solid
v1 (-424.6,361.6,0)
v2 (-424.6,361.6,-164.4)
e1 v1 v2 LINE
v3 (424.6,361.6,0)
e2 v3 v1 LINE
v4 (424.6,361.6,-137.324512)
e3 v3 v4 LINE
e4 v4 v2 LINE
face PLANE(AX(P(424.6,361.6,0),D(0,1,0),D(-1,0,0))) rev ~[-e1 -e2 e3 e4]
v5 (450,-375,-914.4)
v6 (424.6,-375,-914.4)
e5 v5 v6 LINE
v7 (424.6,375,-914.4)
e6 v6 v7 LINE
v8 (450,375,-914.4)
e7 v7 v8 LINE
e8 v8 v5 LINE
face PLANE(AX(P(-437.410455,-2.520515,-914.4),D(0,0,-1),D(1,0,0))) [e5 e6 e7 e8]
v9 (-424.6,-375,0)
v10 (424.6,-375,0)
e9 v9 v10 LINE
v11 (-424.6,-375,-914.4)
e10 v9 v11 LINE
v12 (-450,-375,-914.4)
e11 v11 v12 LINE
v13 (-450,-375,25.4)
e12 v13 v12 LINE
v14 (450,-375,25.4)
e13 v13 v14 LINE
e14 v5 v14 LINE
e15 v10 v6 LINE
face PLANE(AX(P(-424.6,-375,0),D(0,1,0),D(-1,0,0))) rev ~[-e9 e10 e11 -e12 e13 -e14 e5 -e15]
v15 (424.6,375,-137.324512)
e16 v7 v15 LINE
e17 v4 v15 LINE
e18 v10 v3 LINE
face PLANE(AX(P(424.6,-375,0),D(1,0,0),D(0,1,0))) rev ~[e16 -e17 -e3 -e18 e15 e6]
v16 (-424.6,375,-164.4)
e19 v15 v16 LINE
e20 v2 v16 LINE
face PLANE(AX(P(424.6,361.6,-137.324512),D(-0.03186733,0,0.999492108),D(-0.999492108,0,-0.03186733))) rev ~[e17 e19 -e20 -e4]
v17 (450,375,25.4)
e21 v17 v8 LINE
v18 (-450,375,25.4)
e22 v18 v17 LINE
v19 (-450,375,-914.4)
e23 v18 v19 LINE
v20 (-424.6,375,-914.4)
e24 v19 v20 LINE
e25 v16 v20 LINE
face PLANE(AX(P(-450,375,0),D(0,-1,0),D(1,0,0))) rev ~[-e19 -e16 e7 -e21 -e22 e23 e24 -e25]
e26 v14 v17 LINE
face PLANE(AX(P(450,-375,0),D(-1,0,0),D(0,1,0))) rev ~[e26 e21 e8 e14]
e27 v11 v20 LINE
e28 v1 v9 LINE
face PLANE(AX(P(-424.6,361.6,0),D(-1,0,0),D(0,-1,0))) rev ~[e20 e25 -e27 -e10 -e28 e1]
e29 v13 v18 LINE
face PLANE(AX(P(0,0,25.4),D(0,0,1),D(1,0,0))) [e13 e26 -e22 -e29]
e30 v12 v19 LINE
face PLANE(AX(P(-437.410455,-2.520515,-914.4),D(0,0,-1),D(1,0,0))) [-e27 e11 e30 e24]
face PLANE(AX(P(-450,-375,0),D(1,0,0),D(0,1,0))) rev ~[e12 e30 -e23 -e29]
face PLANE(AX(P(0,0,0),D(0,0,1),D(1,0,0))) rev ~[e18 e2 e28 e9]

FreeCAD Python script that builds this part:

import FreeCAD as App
import Part
import Sketcher

V = App.Vector


def add_polygon(sketch, points):
    """Adds a closed chain of lines whose ends are joined by coincident constraints."""
    first, n = sketch.GeometryCount, len(points)
    for a, b in zip(points, points[1:] + points[:1]):
        sketch.addGeometry(Part.LineSegment(App.Vector(*a, 0), App.Vector(*b, 0)), False)
    for i in range(n):
        sketch.addConstraint(Sketcher.Constraint("Coincident", first + i, 2, first + (i + 1) % n, 1))

doc = App.newDocument("Part")
body = doc.addObject("PartDesign::Body", "Body")

# Sketch on XY plane
sketch1 = doc.addObject("Sketcher::SketchObject", "Sketch")
body.addObject(sketch1)
sketch1.AttachmentSupport = (doc.XY_Plane, [""])
sketch1.MapMode = "FlatFace"
add_polygon(sketch1, [(-450, 375), (-450, -375), (450, -375), (450, 375)])  # lines 0-3
sketch1.addConstraint([
    Sketcher.Constraint("Vertical", 0),
    Sketcher.Constraint("Horizontal", 1),
    Sketcher.Constraint("Vertical", 2),
    Sketcher.Constraint("Horizontal", 3),
    Sketcher.Constraint("Symmetric", 0, 2, 2, 2, -1, 1),
    Sketcher.Constraint("DistanceX", 1, 1, 1, 2, 900.0),
    Sketcher.Constraint("DistanceY", 0, 2, 0, 1, 750.0),
])
pad1 = doc.addObject("PartDesign::Pad", "Pad")
body.addObject(pad1)
pad1.Profile = sketch1
pad1.Length = 25.4

# Sketch on XY plane
sketch2 = doc.addObject("Sketcher::SketchObject", "Sketch001")
body.addObject(sketch2)
sketch2.AttachmentSupport = (doc.XY_Plane, [""])
sketch2.MapMode = "FlatFace"
add_polygon(sketch2, [(-424.6, -375), (-450, -375), (-450, 375), (450, 375), (450, -375), (424.6, -375), (424.6, 361.6), (-424.6, 361.6)])  # lines 0-7
sketch2.addConstraint([
    Sketcher.Constraint("Horizontal", 0),
    Sketcher.Constraint("Vertical", 1),
    Sketcher.Constraint("Horizontal", 2),
    Sketcher.Constraint("Vertical", 3),
    Sketcher.Constraint("Horizontal", 4),
    Sketcher.Constraint("Vertical", 5),
    Sketcher.Constraint("Horizontal", 6),
    Sketcher.Constraint("Vertical", 7),
    Sketcher.Constraint("Symmetric", 0, 2, 2, 2, -1, 1),
    Sketcher.Constraint("Symmetric", 4, 2, 7, 2, -2),
    Sketcher.Constraint("DistanceX", 2, 1, 2, 2, 900.0),
    Sketcher.Constraint("DistanceY", 1, 1, 1, 2, 750.0),
    Sketcher.Constraint("DistanceX", 0, 2, 0, 1, 25.4),
    Sketcher.Constraint("DistanceY", 5, 1, 5, 2, 736.6),
])
pad2 = doc.addObject("PartDesign::Pad", "Pad001")
body.addObject(pad2)
pad2.Profile = sketch2
pad2.Length = 914.4
pad2.Reversed = True

# Sketch on XZ plane
sketch3 = doc.addObject("Sketcher::SketchObject", "Sketch002")
body.addObject(sketch3)
sketch3.AttachmentSupport = (doc.XZ_Plane, [""])
sketch3.MapMode = "FlatFace"
sketch3.AttachmentOffset = App.Placement(V(0, 0, -361.6), App.Rotation())
add_polygon(sketch3, [(424.6, -137.324512), (-424.6, -164.4), (-424.6, -914.4), (424.6, -914.4)])  # lines 0-3
sketch3.addConstraint([
    Sketcher.Constraint("Vertical", 1),
    Sketcher.Constraint("Horizontal", 2),
    Sketcher.Constraint("Vertical", 3),
    Sketcher.Constraint("DistanceY", 1, 2, 1, 1, 750.0),
    Sketcher.Constraint("DistanceX", 2, 1, 2, 2, 849.2),
    Sketcher.Constraint("DistanceX", 0, 2, -1, 1, 424.6),
    Sketcher.Constraint("DistanceY", 0, 2, -1, 1, 164.4),
    Sketcher.Constraint("DistanceY", 3, 1, 3, 2, 777.075488),
])
pocket1 = doc.addObject("PartDesign::Pocket", "Pocket")
body.addObject(pocket1)
pocket1.Profile = sketch3
pocket1.Length = 25.4

doc.recompute()
